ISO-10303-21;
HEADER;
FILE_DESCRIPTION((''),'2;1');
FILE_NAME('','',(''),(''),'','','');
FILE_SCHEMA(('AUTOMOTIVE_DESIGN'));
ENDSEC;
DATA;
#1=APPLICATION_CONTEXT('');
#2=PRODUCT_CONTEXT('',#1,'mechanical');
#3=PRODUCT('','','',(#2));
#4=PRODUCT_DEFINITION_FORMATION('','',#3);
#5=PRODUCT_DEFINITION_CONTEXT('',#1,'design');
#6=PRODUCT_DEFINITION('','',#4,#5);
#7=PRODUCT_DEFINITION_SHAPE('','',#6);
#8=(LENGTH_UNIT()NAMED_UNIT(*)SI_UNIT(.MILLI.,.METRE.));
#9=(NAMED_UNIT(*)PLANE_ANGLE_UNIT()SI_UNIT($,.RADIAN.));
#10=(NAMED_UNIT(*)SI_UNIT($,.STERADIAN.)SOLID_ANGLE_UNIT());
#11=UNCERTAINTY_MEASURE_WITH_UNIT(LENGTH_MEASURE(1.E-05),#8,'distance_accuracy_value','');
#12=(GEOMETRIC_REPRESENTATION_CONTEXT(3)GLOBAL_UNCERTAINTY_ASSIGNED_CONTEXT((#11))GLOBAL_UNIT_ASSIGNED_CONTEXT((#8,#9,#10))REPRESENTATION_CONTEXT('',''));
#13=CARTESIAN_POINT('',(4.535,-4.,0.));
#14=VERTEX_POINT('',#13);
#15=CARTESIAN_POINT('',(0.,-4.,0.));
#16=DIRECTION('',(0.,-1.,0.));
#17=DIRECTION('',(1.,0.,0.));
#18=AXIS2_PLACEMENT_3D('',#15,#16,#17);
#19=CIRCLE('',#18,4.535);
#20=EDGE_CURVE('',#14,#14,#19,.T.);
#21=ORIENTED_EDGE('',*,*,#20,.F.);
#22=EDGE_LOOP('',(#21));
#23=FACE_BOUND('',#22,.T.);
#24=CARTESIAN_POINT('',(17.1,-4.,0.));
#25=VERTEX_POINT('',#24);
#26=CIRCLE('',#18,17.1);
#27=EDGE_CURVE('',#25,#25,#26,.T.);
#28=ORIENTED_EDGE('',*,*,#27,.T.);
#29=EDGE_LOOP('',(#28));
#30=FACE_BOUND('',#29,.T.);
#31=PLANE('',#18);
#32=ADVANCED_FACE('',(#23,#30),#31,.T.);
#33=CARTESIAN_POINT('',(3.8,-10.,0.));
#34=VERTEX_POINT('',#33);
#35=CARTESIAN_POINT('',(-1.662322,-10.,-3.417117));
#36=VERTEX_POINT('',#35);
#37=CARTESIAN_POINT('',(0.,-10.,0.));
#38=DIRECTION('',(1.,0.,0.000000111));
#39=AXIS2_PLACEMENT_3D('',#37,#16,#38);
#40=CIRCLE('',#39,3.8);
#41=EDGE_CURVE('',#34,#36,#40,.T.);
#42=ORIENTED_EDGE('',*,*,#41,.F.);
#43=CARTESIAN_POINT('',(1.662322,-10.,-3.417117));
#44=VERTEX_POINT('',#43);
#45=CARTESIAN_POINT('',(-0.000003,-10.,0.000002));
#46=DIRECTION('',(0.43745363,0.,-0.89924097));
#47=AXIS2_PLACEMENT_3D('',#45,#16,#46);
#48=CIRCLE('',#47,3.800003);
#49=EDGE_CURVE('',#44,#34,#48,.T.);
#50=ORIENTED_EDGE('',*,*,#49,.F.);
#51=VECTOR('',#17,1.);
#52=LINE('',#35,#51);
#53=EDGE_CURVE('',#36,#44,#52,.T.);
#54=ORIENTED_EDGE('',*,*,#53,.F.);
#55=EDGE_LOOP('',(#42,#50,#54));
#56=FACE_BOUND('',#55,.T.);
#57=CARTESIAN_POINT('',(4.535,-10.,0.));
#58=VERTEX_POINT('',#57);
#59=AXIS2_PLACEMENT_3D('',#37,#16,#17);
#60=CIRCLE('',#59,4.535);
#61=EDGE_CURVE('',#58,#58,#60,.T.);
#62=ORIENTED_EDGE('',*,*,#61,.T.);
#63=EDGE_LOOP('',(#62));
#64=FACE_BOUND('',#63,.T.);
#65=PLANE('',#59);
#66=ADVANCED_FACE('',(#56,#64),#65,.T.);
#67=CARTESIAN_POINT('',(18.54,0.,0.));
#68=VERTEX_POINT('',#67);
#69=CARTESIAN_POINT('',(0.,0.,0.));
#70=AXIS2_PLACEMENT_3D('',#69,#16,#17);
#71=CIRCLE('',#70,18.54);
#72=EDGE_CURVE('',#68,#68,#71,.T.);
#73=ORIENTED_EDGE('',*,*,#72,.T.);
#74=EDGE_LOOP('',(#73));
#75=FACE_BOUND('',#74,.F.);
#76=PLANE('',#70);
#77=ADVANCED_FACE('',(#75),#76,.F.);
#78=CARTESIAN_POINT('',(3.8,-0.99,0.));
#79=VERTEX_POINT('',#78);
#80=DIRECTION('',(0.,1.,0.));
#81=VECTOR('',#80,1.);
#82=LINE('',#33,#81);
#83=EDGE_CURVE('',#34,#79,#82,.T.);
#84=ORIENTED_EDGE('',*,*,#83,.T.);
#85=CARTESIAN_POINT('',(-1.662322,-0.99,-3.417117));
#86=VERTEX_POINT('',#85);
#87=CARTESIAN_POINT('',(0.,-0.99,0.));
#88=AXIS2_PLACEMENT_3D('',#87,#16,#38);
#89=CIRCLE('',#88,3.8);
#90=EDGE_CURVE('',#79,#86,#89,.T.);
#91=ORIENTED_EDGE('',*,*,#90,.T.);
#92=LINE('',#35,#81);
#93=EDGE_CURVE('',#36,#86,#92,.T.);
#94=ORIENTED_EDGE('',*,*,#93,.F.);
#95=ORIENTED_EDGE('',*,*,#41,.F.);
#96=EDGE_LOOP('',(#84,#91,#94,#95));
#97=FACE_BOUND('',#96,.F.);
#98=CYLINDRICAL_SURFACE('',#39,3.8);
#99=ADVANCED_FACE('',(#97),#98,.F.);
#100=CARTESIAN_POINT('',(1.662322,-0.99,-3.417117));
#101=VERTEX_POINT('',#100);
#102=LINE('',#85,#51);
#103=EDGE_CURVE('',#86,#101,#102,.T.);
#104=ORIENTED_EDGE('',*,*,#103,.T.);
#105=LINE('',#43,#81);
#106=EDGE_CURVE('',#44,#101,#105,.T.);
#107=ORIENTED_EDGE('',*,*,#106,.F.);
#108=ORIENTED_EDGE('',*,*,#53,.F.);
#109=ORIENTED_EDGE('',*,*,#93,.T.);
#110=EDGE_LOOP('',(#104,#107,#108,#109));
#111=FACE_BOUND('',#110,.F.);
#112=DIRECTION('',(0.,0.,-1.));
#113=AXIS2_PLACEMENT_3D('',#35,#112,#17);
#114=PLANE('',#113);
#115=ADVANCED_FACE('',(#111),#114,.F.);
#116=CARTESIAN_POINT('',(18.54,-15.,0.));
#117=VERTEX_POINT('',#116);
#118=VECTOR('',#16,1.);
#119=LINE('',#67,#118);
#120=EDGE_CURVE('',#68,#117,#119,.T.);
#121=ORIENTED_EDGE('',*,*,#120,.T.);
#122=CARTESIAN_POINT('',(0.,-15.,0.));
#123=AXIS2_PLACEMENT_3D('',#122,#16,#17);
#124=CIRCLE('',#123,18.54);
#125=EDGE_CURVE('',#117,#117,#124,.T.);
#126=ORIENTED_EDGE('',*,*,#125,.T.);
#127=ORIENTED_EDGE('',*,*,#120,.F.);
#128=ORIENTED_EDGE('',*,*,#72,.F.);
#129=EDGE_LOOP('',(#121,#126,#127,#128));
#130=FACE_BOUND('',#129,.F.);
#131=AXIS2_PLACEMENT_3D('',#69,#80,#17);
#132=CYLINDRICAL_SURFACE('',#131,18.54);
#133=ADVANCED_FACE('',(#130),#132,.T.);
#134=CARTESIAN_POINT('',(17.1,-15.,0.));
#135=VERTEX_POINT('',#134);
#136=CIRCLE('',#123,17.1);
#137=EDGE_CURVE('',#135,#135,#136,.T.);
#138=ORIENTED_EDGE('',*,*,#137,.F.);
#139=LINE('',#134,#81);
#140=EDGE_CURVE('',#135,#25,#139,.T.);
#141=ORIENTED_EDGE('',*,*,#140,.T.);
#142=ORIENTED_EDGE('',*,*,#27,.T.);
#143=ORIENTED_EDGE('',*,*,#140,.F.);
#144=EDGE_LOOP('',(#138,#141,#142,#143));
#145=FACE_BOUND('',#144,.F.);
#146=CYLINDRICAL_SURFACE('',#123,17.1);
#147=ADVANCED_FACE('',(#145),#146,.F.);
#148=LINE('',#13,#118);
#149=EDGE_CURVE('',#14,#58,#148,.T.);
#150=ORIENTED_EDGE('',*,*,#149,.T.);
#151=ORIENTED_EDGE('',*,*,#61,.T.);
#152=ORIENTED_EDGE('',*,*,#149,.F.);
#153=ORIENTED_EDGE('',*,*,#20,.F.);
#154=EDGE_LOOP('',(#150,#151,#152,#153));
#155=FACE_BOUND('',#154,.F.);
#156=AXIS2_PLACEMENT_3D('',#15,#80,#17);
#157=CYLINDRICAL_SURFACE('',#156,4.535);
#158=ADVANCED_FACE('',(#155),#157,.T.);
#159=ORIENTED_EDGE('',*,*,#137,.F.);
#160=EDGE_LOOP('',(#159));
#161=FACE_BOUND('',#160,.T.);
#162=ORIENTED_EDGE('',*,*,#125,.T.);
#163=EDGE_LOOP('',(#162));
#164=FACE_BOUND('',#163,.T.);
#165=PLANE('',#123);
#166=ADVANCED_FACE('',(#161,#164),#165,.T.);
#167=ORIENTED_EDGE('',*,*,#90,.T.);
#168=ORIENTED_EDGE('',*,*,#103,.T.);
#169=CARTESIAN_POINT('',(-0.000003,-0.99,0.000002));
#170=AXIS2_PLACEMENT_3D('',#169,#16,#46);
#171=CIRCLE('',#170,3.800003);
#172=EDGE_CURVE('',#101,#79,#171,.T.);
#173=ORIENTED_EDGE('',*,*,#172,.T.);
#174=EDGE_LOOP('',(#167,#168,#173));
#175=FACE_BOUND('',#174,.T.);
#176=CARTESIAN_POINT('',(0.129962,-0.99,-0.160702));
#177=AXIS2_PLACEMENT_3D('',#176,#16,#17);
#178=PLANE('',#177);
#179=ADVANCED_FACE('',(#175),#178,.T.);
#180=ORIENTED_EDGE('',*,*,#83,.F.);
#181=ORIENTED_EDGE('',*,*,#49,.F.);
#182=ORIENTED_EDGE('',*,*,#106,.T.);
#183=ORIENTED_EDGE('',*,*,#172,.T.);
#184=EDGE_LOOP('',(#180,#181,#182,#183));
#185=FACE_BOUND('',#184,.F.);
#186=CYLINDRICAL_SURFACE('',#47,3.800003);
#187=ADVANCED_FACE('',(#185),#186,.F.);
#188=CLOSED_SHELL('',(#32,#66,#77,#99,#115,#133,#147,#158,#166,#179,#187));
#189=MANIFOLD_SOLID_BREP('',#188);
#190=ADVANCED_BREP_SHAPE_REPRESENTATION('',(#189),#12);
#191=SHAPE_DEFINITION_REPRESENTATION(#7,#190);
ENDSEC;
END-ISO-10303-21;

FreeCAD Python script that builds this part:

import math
import FreeCAD as App
import Part
import Sketcher

V = App.Vector
Q = App.Units.Quantity

doc = App.newDocument("Part")
body = doc.addObject("PartDesign::Body", "Body")

# Sketch on XZ plane
sketch1 = body.newObject("Sketcher::SketchObject", "Sketch")
sketch1.AttachmentSupport = (doc.getObject("XZ_Plane"), [""])
sketch1.MapMode = "FlatFace"
sketch1.addGeometry(Part.Circle(V(0, 0, 0), V(0, 0, 1), 19), False)
sketch1.addConstraint(Sketcher.Constraint("Coincident", 0, 3, -1, 1))
sketch1.addConstraint(Sketcher.Constraint("Diameter", 0, Q("37.08 mm")))
pad1 = body.newObject("PartDesign::Pad", "Pad")
pad1.Profile = sketch1
pad1.Length = 15

# Sketch on XZ plane
sketch2 = body.newObject("Sketcher::SketchObject", "Sketch001")
sketch2.AttachmentSupport = (doc.getObject("XZ_Plane"), [""])
sketch2.MapMode = "FlatFace"
sketch2.AttachmentOffset = App.Placement(V(0, 0, 15), App.Rotation())
sketch2.addGeometry(Part.Circle(V(0, 0, 0), V(0, 0, 1), 17), False)
sketch2.addConstraint(Sketcher.Constraint("Coincident", 0, 3, -1, 1))
sketch2.addConstraint(Sketcher.Constraint("Diameter", 0, Q("34.2 mm")))
pocket1 = body.newObject("PartDesign::Pocket", "Pocket")
pocket1.Profile = sketch2
pocket1.Length = 11

# Sketch on XZ plane
sketch3 = body.newObject("Sketcher::SketchObject", "Sketch002")
sketch3.AttachmentSupport = (doc.getObject("XZ_Plane"), [""])
sketch3.MapMode = "FlatFace"
sketch3.AttachmentOffset = App.Placement(V(0, 0, 4), App.Rotation())
sketch3.addGeometry(Part.Circle(V(0, 0, 0), V(0, 0, 1), 4.5), False)
sketch3.addConstraint(Sketcher.Constraint("Coincident", 0, 3, -1, 1))
sketch3.addConstraint(Sketcher.Constraint("Diameter", 0, Q("9.07 mm")))
pad2 = body.newObject("PartDesign::Pad", "Pad001")
pad2.Profile = sketch3
pad2.Length = 6

# Sketch on XZ plane
sketch4 = body.newObject("Sketcher::SketchObject", "Sketch003")
sketch4.AttachmentSupport = (doc.getObject("XZ_Plane"), [""])
sketch4.MapMode = "FlatFace"
sketch4.AttachmentOffset = App.Placement(V(0, 0, 10), App.Rotation())
sketch4.addGeometry(Part.ArcOfCircle(Part.Circle(V(0, 0, 0), V(0, 0, 1), 3.8), math.radians(-64), math.radians(0)), False)
sketch4.addGeometry(Part.ArcOfCircle(Part.Circle(V(0, 0, 0), V(0, 0, 1), 3.8), math.radians(0), math.radians(244)), False)
sketch4.addGeometry(Part.LineSegment(V(-1.7, -3.4, 0), V(1.7, -3.4, 0)), False)
sketch4.addConstraint(Sketcher.Constraint("Tangent", 0, 2, 1, 1))
sketch4.addConstraint(Sketcher.Constraint("Coincident", 1, 2, 2, 1))
sketch4.addConstraint(Sketcher.Constraint("Coincident", 2, 2, 0, 1))
sketch4.addConstraint(Sketcher.Constraint("Horizontal", 2))
sketch4.addConstraint(Sketcher.Constraint("Coincident", 0, 3, -1, 1))
sketch4.addConstraint(Sketcher.Constraint("PointOnObject", 0, 2, -1))
sketch4.addConstraint(Sketcher.Constraint("Radius", 1, Q("3.8 mm")))
sketch4.addConstraint(Sketcher.Constraint("DistanceX", -1, 1, 0, 2, Q("3.8 mm")))
sketch4.addConstraint(Sketcher.Constraint("DistanceX", 2, 1, 2, 2, Q("3.324644 mm")))
pocket2 = body.newObject("PartDesign::Pocket", "Pocket001")
pocket2.Profile = sketch4
pocket2.Length = 9.01

doc.recompute()
